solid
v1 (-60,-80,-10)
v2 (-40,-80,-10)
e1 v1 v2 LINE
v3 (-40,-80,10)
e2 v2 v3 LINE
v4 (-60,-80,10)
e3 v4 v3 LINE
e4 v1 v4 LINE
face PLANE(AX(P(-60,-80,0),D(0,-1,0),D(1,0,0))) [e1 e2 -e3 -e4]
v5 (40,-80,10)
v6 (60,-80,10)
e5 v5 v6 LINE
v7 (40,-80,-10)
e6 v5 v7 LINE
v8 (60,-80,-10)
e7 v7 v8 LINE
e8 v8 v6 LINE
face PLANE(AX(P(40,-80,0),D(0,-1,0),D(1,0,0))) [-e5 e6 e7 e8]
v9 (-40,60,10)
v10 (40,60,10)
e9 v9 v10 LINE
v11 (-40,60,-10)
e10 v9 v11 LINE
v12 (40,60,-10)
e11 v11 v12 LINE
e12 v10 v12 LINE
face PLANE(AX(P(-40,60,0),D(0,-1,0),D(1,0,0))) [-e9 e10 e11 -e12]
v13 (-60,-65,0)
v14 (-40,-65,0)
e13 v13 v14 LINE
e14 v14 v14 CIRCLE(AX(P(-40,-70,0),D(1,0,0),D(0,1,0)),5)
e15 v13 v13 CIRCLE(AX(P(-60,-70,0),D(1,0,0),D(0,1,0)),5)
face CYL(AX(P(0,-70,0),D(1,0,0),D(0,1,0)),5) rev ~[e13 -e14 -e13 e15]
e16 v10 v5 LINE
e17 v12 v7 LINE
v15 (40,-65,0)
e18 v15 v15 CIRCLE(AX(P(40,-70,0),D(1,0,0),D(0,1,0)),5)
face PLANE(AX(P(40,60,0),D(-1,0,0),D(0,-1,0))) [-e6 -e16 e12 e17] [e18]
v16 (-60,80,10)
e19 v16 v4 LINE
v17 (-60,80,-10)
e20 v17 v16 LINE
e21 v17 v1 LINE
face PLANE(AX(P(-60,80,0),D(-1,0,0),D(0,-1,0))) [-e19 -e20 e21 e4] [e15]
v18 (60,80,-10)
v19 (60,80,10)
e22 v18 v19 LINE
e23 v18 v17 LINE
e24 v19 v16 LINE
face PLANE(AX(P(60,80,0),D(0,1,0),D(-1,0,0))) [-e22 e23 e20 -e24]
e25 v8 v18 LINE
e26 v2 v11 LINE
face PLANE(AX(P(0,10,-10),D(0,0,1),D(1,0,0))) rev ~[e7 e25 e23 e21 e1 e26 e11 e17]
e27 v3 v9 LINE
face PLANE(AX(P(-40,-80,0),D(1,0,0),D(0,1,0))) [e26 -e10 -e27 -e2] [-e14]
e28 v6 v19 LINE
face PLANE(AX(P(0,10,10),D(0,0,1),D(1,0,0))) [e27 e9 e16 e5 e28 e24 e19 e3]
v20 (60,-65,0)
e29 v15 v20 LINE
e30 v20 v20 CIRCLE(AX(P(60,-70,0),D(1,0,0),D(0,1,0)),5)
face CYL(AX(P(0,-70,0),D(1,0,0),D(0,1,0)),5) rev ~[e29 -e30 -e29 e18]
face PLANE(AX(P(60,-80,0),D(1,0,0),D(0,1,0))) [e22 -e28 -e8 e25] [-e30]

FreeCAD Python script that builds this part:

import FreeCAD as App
import Part
import Sketcher
Q = App.Units.Quantity


def add_polygon(sketch, points):
    """Adds a closed chain of lines whose ends are joined by coincident constraints."""
    first, n = sketch.GeometryCount, len(points)
    for a, b in zip(points, points[1:] + points[:1]):
        sketch.addGeometry(Part.LineSegment(App.Vector(*a, 0), App.Vector(*b, 0)), False)
    for i in range(n):
        sketch.addConstraint(Sketcher.Constraint("Coincident", first + i, 2, first + (i + 1) % n, 1))

doc = App.newDocument("Part")
params = doc.addObject("Spreadsheet::Sheet", "Params")
for row, (alias, value) in enumerate([
    ("sketch1_width", "20 mm"),
    ("sketch1_width2", "120 mm"),
    ("sketch1_height", "160 mm"),
    ("sketch1_height2", "140 mm"),
    ("pad1_length", "20 mm"),
    ("sketch2_diameter", "10 mm"),
    ("pocket1_length", "120 mm"),
], start=1):
    params.set(f"A{row}", alias)
    params.set(f"B{row}", "=" + value)
    params.setAlias(f"B{row}", alias)

body = doc.addObject("PartDesign::Body", "Body")

# Sketch on XY plane
sketch1 = doc.addObject("Sketcher::SketchObject", "Sketch")
body.addObject(sketch1)
sketch1.AttachmentSupport = (doc.XY_Plane, [""])
sketch1.MapMode = "FlatFace"
add_polygon(sketch1, [(40, -80), (60, -80), (60, 80), (-60, 80), (-60, -80), (-40, -80), (-40, 60), (40, 60)])  # lines 0-7
sketch1.addConstraint([
    Sketcher.Constraint("Horizontal", 0),
    Sketcher.Constraint("Vertical", 1),
    Sketcher.Constraint("Horizontal", 2),
    Sketcher.Constraint("Vertical", 3),
    Sketcher.Constraint("Horizontal", 4),
    Sketcher.Constraint("Vertical", 5),
    Sketcher.Constraint("Horizontal", 6),
    Sketcher.Constraint("Vertical", 7),
    Sketcher.Constraint("Symmetric", 0, 2, 2, 2, -1, 1),
    Sketcher.Constraint("Symmetric", 4, 2, 7, 2, -2),
    Sketcher.Constraint("DistanceX", 0, 1, 0, 2, Q("20 mm")),
    Sketcher.Constraint("DistanceX", 2, 2, 2, 1, Q("120 mm")),
    Sketcher.Constraint("DistanceY", 1, 1, 1, 2, Q("160 mm")),
    Sketcher.Constraint("DistanceY", 5, 1, 5, 2, Q("140 mm")),
])
sketch1.setExpression("Constraints[18]", "Params.sketch1_width")
sketch1.setExpression("Constraints[19]", "Params.sketch1_width2")
sketch1.setExpression("Constraints[20]", "Params.sketch1_height")
sketch1.setExpression("Constraints[21]", "Params.sketch1_height2")
pad1 = doc.addObject("PartDesign::Pad", "Pad")
body.addObject(pad1)
pad1.Profile = sketch1
pad1.setExpression("Length", "Params.pad1_length")
pad1.Midplane = True

# Sketch on YZ plane
sketch2 = doc.addObject("Sketcher::SketchObject", "Sketch001")
body.addObject(sketch2)
sketch2.AttachmentSupport = (doc.YZ_Plane, [""])
sketch2.MapMode = "FlatFace"
sketch2.addGeometry(Part.Circle(App.Vector(-70, 0, 0), App.Vector(0, 0, 1), 5), False)
sketch2.addConstraint([
    Sketcher.Constraint("PointOnObject", 0, 3, -1),
    Sketcher.Constraint("Diameter", 0, Q("10 mm")),
    Sketcher.Constraint("DistanceX", 0, 3, -1, 1, Q("70 mm")),
])
sketch2.setExpression("Constraints[1]", "Params.sketch2_diameter")
pocket1 = doc.addObject("PartDesign::Pocket", "Pocket")
body.addObject(pocket1)
pocket1.Profile = sketch2
pocket1.setExpression("Length", "Params.pocket1_length")
pocket1.Midplane = True

doc.recompute()
